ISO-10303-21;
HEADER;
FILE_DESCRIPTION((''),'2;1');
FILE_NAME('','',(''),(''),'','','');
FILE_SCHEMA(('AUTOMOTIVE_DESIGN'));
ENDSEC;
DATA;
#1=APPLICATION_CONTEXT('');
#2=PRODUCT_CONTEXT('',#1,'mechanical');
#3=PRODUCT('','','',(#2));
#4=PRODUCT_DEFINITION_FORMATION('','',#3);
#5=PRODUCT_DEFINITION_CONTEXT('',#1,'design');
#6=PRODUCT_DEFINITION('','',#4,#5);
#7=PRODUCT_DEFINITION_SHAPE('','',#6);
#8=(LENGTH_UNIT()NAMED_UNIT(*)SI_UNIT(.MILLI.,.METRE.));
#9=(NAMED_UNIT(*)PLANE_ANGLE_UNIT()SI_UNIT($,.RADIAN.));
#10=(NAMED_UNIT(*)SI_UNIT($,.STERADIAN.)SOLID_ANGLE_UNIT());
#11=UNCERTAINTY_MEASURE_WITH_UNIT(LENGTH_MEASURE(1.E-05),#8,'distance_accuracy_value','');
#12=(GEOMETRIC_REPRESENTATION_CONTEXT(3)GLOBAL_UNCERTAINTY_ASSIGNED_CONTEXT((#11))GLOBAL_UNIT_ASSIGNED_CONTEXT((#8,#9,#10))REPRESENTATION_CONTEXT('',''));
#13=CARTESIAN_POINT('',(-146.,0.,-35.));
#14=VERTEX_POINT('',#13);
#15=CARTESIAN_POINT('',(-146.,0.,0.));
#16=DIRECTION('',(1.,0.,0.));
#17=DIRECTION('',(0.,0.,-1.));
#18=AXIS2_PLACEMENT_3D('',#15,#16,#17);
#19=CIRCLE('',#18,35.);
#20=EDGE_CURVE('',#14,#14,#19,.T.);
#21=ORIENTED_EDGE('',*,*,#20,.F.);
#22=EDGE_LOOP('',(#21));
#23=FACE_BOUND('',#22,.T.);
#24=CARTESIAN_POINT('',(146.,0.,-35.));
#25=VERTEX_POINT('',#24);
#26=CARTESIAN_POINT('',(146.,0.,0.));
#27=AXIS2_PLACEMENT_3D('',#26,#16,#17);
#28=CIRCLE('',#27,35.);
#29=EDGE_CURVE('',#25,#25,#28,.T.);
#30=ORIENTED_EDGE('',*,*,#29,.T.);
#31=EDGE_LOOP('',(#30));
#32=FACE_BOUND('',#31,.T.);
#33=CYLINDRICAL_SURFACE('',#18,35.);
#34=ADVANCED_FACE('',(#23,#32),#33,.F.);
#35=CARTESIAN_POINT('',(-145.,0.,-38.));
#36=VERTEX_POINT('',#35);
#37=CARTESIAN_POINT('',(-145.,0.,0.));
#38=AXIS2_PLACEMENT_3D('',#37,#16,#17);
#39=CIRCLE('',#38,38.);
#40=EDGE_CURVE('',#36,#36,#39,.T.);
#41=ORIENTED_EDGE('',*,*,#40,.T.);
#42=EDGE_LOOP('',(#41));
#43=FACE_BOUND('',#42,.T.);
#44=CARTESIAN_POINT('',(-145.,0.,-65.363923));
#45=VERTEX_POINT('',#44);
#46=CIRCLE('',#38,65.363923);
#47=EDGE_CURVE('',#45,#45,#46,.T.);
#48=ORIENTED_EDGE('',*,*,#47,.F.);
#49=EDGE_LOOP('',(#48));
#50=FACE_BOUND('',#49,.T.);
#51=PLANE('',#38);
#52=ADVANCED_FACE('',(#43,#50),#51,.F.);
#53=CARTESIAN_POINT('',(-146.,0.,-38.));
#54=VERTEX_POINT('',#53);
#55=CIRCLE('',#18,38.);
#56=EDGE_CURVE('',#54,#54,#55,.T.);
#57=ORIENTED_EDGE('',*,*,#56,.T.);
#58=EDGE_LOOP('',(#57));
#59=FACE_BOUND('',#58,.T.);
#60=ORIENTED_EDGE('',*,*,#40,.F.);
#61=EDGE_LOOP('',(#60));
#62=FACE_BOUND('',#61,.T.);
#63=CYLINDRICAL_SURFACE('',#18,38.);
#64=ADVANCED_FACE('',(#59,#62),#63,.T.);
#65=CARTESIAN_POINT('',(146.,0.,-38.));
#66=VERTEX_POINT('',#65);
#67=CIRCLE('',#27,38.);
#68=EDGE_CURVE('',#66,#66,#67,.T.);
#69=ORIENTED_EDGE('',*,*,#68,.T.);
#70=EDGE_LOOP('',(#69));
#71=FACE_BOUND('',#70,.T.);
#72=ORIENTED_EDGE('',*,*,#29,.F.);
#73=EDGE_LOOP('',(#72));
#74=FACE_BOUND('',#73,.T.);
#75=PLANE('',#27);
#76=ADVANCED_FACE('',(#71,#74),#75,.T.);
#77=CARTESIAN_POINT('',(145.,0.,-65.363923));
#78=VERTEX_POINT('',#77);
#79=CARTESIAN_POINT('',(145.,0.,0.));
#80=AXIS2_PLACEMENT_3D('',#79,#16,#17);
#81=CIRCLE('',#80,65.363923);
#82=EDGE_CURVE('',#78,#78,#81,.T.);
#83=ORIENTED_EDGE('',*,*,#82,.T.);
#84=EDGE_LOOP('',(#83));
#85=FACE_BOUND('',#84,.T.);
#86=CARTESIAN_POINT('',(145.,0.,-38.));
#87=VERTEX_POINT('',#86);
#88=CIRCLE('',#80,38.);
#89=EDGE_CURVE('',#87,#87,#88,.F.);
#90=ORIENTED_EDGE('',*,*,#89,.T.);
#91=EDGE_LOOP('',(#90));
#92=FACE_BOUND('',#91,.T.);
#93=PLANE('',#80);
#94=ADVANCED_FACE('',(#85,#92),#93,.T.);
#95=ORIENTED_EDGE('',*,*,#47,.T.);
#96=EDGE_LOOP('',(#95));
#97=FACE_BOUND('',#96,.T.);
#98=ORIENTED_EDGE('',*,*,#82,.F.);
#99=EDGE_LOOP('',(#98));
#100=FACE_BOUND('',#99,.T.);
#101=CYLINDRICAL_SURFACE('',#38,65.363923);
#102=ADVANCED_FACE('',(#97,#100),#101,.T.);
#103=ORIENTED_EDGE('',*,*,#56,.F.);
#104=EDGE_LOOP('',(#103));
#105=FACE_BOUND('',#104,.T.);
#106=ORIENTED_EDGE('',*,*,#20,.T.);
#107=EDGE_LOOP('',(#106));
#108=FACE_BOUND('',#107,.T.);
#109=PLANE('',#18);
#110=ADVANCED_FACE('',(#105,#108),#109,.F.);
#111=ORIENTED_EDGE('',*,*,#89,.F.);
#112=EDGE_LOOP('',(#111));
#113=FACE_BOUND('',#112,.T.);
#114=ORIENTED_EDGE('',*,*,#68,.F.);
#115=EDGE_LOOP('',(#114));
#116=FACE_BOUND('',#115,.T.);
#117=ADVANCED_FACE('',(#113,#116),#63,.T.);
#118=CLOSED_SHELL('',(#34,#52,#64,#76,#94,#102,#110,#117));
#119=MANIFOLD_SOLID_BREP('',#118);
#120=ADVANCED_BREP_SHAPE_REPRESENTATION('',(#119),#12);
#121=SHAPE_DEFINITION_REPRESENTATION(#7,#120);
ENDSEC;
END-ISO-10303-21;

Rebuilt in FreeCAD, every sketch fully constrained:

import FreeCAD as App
import Part
import Sketcher
Q = App.Units.Quantity

doc = App.newDocument("Part")
body = doc.addObject("PartDesign::Body", "Body")

sketch1 = body.newObject("Sketcher::SketchObject", "Sketch")
sketch1.AttachmentSupport = (doc.getObject("YZ_Plane"), [""])
sketch1.MapMode = "FlatFace"
sketch1.addGeometry([
    Part.Circle(App.Vector(0, 0, 0), App.Vector(0, 0, 1), 38),
    Part.Circle(App.Vector(0, 0, 0), App.Vector(0, 0, 1), 35),
], False)
sketch1.addConstraint([
    Sketcher.Constraint("Coincident", 0, 3, -1, 1),
    Sketcher.Constraint("Coincident", 1, 3, -1, 1),
    Sketcher.Constraint("Diameter", 0, Q("76 mm")),
    Sketcher.Constraint("Diameter", 1, Q("70 mm")),
])
pad1 = body.newObject("PartDesign::Pad", "Pad")
pad1.Profile = sketch1
pad1.Type = "TwoLengths"
pad1.Length = 146
pad1.Length2 = 146

sketch2 = body.newObject("Sketcher::SketchObject", "Sketch001")
sketch2.AttachmentSupport = (doc.getObject("YZ_Plane"), [""])
sketch2.MapMode = "FlatFace"
sketch2.addGeometry([
    Part.Circle(App.Vector(0, 0, 0), App.Vector(0, 0, 1), 65.363923),
    Part.Circle(App.Vector(0, 0, 0), App.Vector(0, 0, 1), 38),
], False)
sketch2.addConstraint([
    Sketcher.Constraint("Coincident", 0, 3, -1, 1),
    Sketcher.Constraint("Coincident", 1, 3, -1, 1),
    Sketcher.Constraint("Diameter", 1, Q("76 mm")),
    Sketcher.Constraint("Diameter", 0, Q("130.727846 mm")),
])
pad2 = body.newObject("PartDesign::Pad", "Pad001")
pad2.Profile = sketch2
pad2.Type = "TwoLengths"
pad2.Length = 145
pad2.Length2 = 145

doc.recompute()
